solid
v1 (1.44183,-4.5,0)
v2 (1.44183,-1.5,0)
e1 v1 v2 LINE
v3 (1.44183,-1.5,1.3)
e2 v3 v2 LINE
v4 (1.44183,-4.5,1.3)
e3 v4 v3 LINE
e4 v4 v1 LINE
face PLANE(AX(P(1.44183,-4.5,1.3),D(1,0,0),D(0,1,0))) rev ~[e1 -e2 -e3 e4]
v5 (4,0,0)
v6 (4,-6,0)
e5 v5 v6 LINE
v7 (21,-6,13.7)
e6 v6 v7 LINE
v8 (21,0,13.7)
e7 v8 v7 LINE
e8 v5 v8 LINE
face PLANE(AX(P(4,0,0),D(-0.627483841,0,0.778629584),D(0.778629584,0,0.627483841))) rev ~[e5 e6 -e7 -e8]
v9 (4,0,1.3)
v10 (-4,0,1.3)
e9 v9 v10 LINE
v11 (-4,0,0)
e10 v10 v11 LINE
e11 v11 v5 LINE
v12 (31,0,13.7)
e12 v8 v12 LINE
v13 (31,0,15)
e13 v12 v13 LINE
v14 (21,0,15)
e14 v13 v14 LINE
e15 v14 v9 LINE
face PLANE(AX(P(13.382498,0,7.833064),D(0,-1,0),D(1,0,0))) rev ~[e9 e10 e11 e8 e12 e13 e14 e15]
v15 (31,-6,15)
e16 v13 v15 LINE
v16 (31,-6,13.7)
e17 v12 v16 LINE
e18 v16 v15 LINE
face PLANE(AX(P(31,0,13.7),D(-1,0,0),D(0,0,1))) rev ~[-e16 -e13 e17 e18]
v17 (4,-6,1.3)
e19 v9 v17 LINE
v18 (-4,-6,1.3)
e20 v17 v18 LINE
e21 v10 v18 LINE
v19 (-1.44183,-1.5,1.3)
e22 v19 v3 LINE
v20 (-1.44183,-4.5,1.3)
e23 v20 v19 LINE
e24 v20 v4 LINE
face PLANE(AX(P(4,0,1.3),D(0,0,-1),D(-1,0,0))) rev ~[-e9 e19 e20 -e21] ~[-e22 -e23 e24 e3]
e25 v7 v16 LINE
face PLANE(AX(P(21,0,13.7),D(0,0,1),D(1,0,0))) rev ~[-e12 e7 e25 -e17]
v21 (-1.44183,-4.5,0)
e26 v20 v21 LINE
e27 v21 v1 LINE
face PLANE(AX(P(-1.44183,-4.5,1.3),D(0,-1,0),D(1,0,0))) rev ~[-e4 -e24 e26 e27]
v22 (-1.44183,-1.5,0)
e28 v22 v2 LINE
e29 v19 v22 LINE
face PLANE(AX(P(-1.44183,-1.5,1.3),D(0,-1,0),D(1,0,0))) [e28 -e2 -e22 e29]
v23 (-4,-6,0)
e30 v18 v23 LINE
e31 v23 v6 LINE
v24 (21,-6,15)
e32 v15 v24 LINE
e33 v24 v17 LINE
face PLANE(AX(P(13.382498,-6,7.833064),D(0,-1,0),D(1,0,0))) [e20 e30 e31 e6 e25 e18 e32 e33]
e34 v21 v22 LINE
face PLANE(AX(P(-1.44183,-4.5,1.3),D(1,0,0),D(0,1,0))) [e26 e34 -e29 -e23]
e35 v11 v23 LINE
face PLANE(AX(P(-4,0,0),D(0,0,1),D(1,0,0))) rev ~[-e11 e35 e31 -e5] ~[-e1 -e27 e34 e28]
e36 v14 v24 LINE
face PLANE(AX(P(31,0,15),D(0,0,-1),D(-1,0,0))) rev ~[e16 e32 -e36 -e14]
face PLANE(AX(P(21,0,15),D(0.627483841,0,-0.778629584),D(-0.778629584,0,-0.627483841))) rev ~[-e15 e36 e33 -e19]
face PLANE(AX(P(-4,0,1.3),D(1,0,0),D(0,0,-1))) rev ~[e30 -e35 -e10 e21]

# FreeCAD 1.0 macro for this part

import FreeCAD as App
import Part
import Sketcher
Q = App.Units.Quantity

doc = App.newDocument("Part")
params = doc.addObject("Spreadsheet::Sheet", "Params")
for row, (alias, value) in enumerate([
    ("sketch1_width", "8 mm"),
    ("sketch1_width2", "10 mm"),
    ("sketch1_height", "1.3 mm"),
    ("pad1_length", "6 mm"),
    ("sketch2_height", "3 mm"),
    ("pocket1_length", "1.3 mm"),
], start=1):
    params.set(f"A{row}", alias)
    params.set(f"B{row}", "=" + value)
    params.setAlias(f"B{row}", alias)

body = doc.addObject("PartDesign::Body", "Body")

sketch1 = doc.addObject("Sketcher::SketchObject", "Sketch")
body.addObject(sketch1)
sketch1.AttachmentSupport = (doc.XZ_Plane, [""])
sketch1.MapMode = "FlatFace"
sketch1.addGeometry([
    Part.LineSegment(App.Vector(-4, 1.3, 0), App.Vector(-4, 0, 0)),
    Part.LineSegment(App.Vector(-4, 0, 0), App.Vector(4, 0, 0)),
    Part.LineSegment(App.Vector(4, 0, 0), App.Vector(21, 13.7, 0)),
    Part.LineSegment(App.Vector(21, 13.7, 0), App.Vector(31, 13.7, 0)),
    Part.LineSegment(App.Vector(31, 13.7, 0), App.Vector(31, 15, 0)),
    Part.LineSegment(App.Vector(31, 15, 0), App.Vector(21, 15, 0)),
    Part.LineSegment(App.Vector(21, 15, 0), App.Vector(4, 1.3, 0)),
    Part.LineSegment(App.Vector(4, 1.3, 0), App.Vector(-4, 1.3, 0)),
], False)
sketch1.addConstraint([
    Sketcher.Constraint("Coincident", 0, 2, 1, 1),
    Sketcher.Constraint("Coincident", 1, 2, 2, 1),
    Sketcher.Constraint("Coincident", 2, 2, 3, 1),
    Sketcher.Constraint("Coincident", 3, 2, 4, 1),
    Sketcher.Constraint("Coincident", 4, 2, 5, 1),
    Sketcher.Constraint("Coincident", 5, 2, 6, 1),
    Sketcher.Constraint("Coincident", 6, 2, 7, 1),
    Sketcher.Constraint("Coincident", 7, 2, 0, 1),
    Sketcher.Constraint("Vertical", 0),
    Sketcher.Constraint("Horizontal", 1),
    Sketcher.Constraint("Horizontal", 3),
    Sketcher.Constraint("Vertical", 4),
    Sketcher.Constraint("Horizontal", 5),
    Sketcher.Constraint("Horizontal", 7),
    Sketcher.Constraint("Symmetric", 0, 2, 1, 2, -1, 1),
    Sketcher.Constraint("Parallel", 2, 6),
    Sketcher.Constraint("Vertical", 2, 2, 5, 2),
    Sketcher.Constraint("Vertical", 1, 2, 6, 2),
    Sketcher.Constraint("DistanceX", 1, 1, 1, 2, Q("8 mm")),
    Sketcher.Constraint("DistanceX", 3, 1, 3, 2, Q("10 mm")),
    Sketcher.Constraint("DistanceY", 0, 2, 0, 1, Q("1.3 mm")),
    Sketcher.Constraint("DistanceX", -1, 1, 2, 2, Q("21 mm")),
    Sketcher.Constraint("DistanceY", -1, 1, 4, 2, Q("15 mm")),
])
sketch1.setExpression("Constraints[18]", "Params.sketch1_width")
sketch1.setExpression("Constraints[19]", "Params.sketch1_width2")
sketch1.setExpression("Constraints[20]", "Params.sketch1_height")
pad1 = doc.addObject("PartDesign::Pad", "Pad")
body.addObject(pad1)
pad1.Profile = sketch1
pad1.setExpression("Length", "Params.pad1_length")

sketch2 = doc.addObject("Sketcher::SketchObject", "Sketch001")
body.addObject(sketch2)
sketch2.AttachmentSupport = (doc.XY_Plane, [""])
sketch2.MapMode = "FlatFace"
sketch2.AttachmentOffset = App.Placement(App.Vector(0, 0, 1.3), App.Rotation())
sketch2.addGeometry([
    Part.LineSegment(App.Vector(-1.44183, -1.5, 0), App.Vector(-1.44183, -4.5, 0)),
    Part.LineSegment(App.Vector(-1.44183, -4.5, 0), App.Vector(1.44183, -4.5, 0)),
    Part.LineSegment(App.Vector(1.44183, -4.5, 0), App.Vector(1.44183, -1.5, 0)),
    Part.LineSegment(App.Vector(1.44183, -1.5, 0), App.Vector(-1.44183, -1.5, 0)),
], False)
sketch2.addConstraint([
    Sketcher.Constraint("Coincident", 0, 2, 1, 1),
    Sketcher.Constraint("Coincident", 1, 2, 2, 1),
    Sketcher.Constraint("Coincident", 2, 2, 3, 1),
    Sketcher.Constraint("Coincident", 3, 2, 0, 1),
    Sketcher.Constraint("Vertical", 0),
    Sketcher.Constraint("Horizontal", 1),
    Sketcher.Constraint("Vertical", 2),
    Sketcher.Constraint("Horizontal", 3),
    Sketcher.Constraint("DistanceY", 0, 2, 0, 1, Q("3 mm")),
    Sketcher.Constraint("DistanceY", 0, 2, -1, 1, Q("4.5 mm")),
    Sketcher.Constraint("DistanceX", 1, 1, 1, 2, Q("2.88366 mm")),
    Sketcher.Constraint("DistanceX", 0, 2, -1, 1, Q("1.44183 mm")),
])
sketch2.setExpression("Constraints[8]", "Params.sketch2_height")
pocket1 = doc.addObject("PartDesign::Pocket", "Pocket")
body.addObject(pocket1)
pocket1.Profile = sketch2
pocket1.setExpression("Length", "Params.pocket1_length")

doc.recompute()
